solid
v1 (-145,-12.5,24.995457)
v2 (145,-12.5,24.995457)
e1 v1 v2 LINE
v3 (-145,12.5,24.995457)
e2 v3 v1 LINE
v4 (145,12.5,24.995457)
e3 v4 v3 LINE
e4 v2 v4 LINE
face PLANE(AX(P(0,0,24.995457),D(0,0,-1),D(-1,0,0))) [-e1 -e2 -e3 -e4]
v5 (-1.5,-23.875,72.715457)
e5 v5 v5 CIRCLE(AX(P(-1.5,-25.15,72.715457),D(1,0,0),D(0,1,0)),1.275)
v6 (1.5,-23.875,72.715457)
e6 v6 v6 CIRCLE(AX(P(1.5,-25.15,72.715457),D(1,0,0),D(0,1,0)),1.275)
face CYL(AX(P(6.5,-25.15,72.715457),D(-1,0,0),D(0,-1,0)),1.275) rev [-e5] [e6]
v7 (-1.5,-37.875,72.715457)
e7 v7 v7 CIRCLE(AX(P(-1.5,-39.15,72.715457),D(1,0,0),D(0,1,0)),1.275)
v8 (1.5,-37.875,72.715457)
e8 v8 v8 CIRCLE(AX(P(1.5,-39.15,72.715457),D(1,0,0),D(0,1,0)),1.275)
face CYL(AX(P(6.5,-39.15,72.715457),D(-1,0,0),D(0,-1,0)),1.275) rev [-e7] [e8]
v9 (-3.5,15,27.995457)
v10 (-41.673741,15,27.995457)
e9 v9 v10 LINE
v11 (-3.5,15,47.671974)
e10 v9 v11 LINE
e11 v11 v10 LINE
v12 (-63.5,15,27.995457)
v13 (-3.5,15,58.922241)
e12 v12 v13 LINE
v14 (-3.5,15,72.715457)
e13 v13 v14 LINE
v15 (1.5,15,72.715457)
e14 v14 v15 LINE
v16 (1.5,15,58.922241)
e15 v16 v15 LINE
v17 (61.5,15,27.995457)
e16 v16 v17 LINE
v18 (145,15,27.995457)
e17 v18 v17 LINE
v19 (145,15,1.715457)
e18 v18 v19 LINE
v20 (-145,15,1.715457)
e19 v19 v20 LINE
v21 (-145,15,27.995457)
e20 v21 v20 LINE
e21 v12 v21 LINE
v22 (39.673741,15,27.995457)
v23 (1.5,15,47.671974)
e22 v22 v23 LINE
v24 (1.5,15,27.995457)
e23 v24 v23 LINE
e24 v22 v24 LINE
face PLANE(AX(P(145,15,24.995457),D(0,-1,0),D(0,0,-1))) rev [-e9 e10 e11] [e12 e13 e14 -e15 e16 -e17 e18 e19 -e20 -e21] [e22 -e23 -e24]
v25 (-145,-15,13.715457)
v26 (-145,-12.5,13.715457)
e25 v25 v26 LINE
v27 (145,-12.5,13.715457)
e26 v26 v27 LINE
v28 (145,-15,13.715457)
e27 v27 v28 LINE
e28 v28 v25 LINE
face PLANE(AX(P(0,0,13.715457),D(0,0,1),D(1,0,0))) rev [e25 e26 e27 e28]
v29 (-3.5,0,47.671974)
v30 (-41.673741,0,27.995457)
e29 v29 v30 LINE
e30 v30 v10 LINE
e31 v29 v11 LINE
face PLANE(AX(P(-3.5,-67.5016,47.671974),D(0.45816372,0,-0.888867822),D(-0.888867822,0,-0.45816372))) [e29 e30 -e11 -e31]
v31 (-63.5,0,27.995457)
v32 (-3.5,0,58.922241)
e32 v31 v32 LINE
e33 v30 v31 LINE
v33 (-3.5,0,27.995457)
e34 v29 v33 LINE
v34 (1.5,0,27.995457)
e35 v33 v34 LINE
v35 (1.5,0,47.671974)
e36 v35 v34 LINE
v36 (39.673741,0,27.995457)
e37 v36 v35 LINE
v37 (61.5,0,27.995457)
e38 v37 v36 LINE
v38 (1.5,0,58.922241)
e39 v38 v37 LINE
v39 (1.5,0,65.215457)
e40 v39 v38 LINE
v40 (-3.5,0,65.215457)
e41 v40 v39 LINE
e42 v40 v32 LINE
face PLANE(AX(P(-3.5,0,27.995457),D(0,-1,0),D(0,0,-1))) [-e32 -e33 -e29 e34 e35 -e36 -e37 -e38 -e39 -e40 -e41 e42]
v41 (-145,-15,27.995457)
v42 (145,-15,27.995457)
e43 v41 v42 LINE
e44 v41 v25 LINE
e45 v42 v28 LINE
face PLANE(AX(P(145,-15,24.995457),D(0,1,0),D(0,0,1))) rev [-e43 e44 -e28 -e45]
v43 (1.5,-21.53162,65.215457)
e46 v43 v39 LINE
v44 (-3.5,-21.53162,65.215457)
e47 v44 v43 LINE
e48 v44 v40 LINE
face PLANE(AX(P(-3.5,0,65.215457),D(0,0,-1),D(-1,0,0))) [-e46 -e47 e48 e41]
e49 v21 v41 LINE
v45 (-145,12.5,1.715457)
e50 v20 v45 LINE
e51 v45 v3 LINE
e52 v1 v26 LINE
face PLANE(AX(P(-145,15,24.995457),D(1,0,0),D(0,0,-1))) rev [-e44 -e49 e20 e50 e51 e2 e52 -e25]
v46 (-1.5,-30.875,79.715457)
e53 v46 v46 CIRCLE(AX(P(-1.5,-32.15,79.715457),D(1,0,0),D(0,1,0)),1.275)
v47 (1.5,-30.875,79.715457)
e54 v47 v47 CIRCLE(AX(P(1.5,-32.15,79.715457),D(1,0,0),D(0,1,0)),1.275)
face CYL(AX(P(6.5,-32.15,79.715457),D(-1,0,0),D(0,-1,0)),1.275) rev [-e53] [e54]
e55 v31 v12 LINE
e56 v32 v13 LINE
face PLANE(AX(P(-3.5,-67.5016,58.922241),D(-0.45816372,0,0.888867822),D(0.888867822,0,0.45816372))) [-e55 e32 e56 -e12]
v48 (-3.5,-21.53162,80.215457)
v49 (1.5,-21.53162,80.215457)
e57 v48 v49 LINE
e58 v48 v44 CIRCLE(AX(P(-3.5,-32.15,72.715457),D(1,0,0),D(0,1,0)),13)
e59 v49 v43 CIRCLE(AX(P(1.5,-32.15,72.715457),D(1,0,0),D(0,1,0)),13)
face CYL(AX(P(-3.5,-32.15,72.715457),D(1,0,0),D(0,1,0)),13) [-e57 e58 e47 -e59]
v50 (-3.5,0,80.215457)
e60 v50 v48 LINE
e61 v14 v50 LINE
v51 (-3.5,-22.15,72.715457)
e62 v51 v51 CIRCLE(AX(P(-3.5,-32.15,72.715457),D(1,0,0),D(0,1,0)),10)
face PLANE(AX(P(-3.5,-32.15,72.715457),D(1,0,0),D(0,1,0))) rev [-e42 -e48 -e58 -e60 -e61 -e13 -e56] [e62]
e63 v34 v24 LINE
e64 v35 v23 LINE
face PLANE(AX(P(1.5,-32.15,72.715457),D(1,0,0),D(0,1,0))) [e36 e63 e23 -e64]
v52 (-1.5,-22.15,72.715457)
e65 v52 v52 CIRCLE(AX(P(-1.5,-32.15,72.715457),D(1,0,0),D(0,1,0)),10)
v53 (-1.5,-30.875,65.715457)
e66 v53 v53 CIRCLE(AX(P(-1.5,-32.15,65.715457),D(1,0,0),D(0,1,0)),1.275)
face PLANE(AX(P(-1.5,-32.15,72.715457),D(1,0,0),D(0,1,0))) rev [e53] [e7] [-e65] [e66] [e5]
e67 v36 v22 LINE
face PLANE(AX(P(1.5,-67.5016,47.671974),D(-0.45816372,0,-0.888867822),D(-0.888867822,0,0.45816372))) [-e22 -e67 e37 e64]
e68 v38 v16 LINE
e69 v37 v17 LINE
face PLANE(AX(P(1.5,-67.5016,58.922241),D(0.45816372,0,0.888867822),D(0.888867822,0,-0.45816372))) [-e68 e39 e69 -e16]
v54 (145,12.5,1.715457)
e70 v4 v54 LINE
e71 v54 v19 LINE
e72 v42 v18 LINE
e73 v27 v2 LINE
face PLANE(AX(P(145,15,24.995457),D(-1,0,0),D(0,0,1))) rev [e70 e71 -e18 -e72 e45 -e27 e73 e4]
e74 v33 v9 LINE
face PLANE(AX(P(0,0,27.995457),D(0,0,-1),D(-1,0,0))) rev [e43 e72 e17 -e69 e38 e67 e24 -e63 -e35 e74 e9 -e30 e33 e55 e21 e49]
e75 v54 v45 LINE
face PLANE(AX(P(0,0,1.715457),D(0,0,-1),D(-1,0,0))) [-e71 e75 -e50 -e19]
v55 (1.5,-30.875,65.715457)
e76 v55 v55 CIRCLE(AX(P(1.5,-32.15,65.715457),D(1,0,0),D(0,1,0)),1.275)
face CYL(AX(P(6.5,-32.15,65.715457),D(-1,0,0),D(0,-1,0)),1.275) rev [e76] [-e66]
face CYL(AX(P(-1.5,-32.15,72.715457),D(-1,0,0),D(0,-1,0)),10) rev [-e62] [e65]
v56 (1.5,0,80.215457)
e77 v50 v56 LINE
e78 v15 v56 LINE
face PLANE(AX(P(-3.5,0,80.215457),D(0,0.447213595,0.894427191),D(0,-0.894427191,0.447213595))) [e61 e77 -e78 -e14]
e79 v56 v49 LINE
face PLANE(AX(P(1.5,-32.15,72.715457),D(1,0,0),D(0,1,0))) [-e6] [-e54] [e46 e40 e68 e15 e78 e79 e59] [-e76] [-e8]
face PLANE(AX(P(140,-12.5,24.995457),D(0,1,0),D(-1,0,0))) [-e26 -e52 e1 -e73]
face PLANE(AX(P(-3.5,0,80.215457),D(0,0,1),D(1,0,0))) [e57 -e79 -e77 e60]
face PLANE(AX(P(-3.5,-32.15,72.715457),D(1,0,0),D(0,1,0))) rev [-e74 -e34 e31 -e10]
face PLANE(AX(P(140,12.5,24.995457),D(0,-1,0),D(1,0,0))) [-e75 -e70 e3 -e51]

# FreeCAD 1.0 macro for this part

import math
import FreeCAD as App
import Part
import Sketcher
Q = App.Units.Quantity

doc = App.newDocument("Part")
body = doc.addObject("PartDesign::Body", "Body")

sketch1 = body.newObject("Sketcher::SketchObject", "Sketch")
sketch1.AttachmentSupport = (doc.getObject("XY_Plane"), [""])
sketch1.MapMode = "FlatFace"
sketch1.AttachmentOffset = App.Placement(App.Vector(0, 0, 1.715457), App.Rotation())
sketch1.addGeometry([
    Part.LineSegment(App.Vector(-145, 15, 0), App.Vector(-145, -15, 0)),
    Part.LineSegment(App.Vector(-145, -15, 0), App.Vector(145, -15, 0)),
    Part.LineSegment(App.Vector(145, -15, 0), App.Vector(145, 15, 0)),
    Part.LineSegment(App.Vector(145, 15, 0), App.Vector(-145, 15, 0)),
    Part.LineSegment(App.Vector(140, -12, 0), App.Vector(-140, -12, 0)),
    Part.LineSegment(App.Vector(-140, -12, 0), App.Vector(-140, 12, 0)),
    Part.LineSegment(App.Vector(-140, 12, 0), App.Vector(140, 12, 0)),
    Part.LineSegment(App.Vector(140, 12, 0), App.Vector(140, -12, 0)),
], False)
sketch1.addConstraint([
    Sketcher.Constraint("Coincident", 0, 2, 1, 1),
    Sketcher.Constraint("Coincident", 1, 2, 2, 1),
    Sketcher.Constraint("Coincident", 2, 2, 3, 1),
    Sketcher.Constraint("Coincident", 3, 2, 0, 1),
    Sketcher.Constraint("Coincident", 4, 2, 5, 1),
    Sketcher.Constraint("Coincident", 5, 2, 6, 1),
    Sketcher.Constraint("Coincident", 6, 2, 7, 1),
    Sketcher.Constraint("Coincident", 7, 2, 4, 1),
    Sketcher.Constraint("Vertical", 0),
    Sketcher.Constraint("Horizontal", 1),
    Sketcher.Constraint("Vertical", 2),
    Sketcher.Constraint("Horizontal", 3),
    Sketcher.Constraint("Horizontal", 4),
    Sketcher.Constraint("Vertical", 5),
    Sketcher.Constraint("Horizontal", 6),
    Sketcher.Constraint("Vertical", 7),
    Sketcher.Constraint("Symmetric", 0, 2, 2, 2, -1, 1),
    Sketcher.Constraint("Symmetric", 4, 2, 6, 2, -1, 1),
    Sketcher.Constraint("DistanceX", 1, 1, 1, 2, Q("290 mm")),
    Sketcher.Constraint("DistanceX", 4, 2, 4, 1, Q("280 mm")),
    Sketcher.Constraint("DistanceY", 0, 2, 0, 1, Q("30 mm")),
    Sketcher.Constraint("DistanceY", 5, 1, 5, 2, Q("25 mm")),
])
pad1 = body.newObject("PartDesign::Pad", "Pad")
pad1.Profile = sketch1
pad1.Length = 23.28

sketch2 = body.newObject("Sketcher::SketchObject", "Sketch001")
sketch2.AttachmentSupport = (doc.getObject("XY_Plane"), [""])
sketch2.MapMode = "FlatFace"
sketch2.AttachmentOffset = App.Placement(App.Vector(0, 0, 24.995457), App.Rotation())
sketch2.addGeometry([
    Part.LineSegment(App.Vector(-145, 15, 0), App.Vector(-145, -15, 0)),
    Part.LineSegment(App.Vector(-145, -15, 0), App.Vector(145, -15, 0)),
    Part.LineSegment(App.Vector(145, -15, 0), App.Vector(145, 15, 0)),
    Part.LineSegment(App.Vector(145, 15, 0), App.Vector(-145, 15, 0)),
], False)
sketch2.addConstraint([
    Sketcher.Constraint("Coincident", 0, 2, 1, 1),
    Sketcher.Constraint("Coincident", 1, 2, 2, 1),
    Sketcher.Constraint("Coincident", 2, 2, 3, 1),
    Sketcher.Constraint("Coincident", 3, 2, 0, 1),
    Sketcher.Constraint("Vertical", 0),
    Sketcher.Constraint("Horizontal", 1),
    Sketcher.Constraint("Vertical", 2),
    Sketcher.Constraint("Horizontal", 3),
    Sketcher.Constraint("Symmetric", 0, 2, 2, 2, -1, 1),
    Sketcher.Constraint("DistanceX", 1, 1, 1, 2, Q("290 mm")),
    Sketcher.Constraint("DistanceY", 0, 2, 0, 1, Q("30 mm")),
])
pad2 = body.newObject("PartDesign::Pad", "Pad001")
pad2.Profile = sketch2
pad2.Length = 3

sketch3 = body.newObject("Sketcher::SketchObject", "Sketch002")
sketch3.AttachmentSupport = (doc.getObject("YZ_Plane"), [""])
sketch3.MapMode = "FlatFace"
sketch3.AttachmentOffset = App.Placement(App.Vector(0, 0, 145), App.Rotation())
sketch3.addGeometry([
    Part.LineSegment(App.Vector(12, 25, 0), App.Vector(-12, 25, 0)),
    Part.LineSegment(App.Vector(-12, 25, 0), App.Vector(-12, 2, 0)),
    Part.LineSegment(App.Vector(-12, 2, 0), App.Vector(12, 2, 0)),
    Part.LineSegment(App.Vector(12, 2, 0), App.Vector(12, 25, 0)),
], False)
sketch3.addConstraint([
    Sketcher.Constraint("Coincident", 0, 2, 1, 1),
    Sketcher.Constraint("Coincident", 1, 2, 2, 1),
    Sketcher.Constraint("Coincident", 2, 2, 3, 1),
    Sketcher.Constraint("Coincident", 3, 2, 0, 1),
    Sketcher.Constraint("Horizontal", 0),
    Sketcher.Constraint("Vertical", 1),
    Sketcher.Constraint("Horizontal", 2),
    Sketcher.Constraint("Vertical", 3),
    Sketcher.Constraint("DistanceX", 0, 2, 0, 1, Q("25 mm")),
    Sketcher.Constraint("DistanceY", 1, 2, 1, 1, Q("23.28 mm")),
    Sketcher.Constraint("DistanceX", 0, 2, -1, 1, Q("12.5 mm")),
    Sketcher.Constraint("DistanceY", -1, 1, 0, 2, Q("24.995457 mm")),
])
pocket1 = body.newObject("PartDesign::Pocket", "Pocket")
pocket1.Profile = sketch3
pocket1.Type = "ThroughAll"
pocket1.Midplane = True

sketch4 = body.newObject("Sketcher::SketchObject", "Sketch003")
sketch4.AttachmentSupport = (doc.getObject("YZ_Plane"), [""])
sketch4.MapMode = "FlatFace"
sketch4.AttachmentOffset = App.Placement(App.Vector(0, 0, -0.5), App.Rotation())
sketch4.addGeometry([
    Part.LineSegment(App.Vector(0, 28, 0), App.Vector(15, 28, 0)),
    Part.LineSegment(App.Vector(15, 28, 0), App.Vector(15, 73, 0)),
    Part.LineSegment(App.Vector(15, 73, 0), App.Vector(0, 80, 0)),
    Part.LineSegment(App.Vector(0, 80, 0), App.Vector(-22, 80, 0)),
    Part.ArcOfCircle(Part.Circle(App.Vector(-32, 73, 0), App.Vector(0, 0, 1), 13), math.radians(35), math.radians(325)),
    Part.LineSegment(App.Vector(-22, 65, 0), App.Vector(0, 65, 0)),
    Part.LineSegment(App.Vector(0, 65, 0), App.Vector(0, 28, 0)),
], False)
sketch4.addConstraint([
    Sketcher.Constraint("Coincident", 0, 2, 1, 1),
    Sketcher.Constraint("Coincident", 1, 2, 2, 1),
    Sketcher.Constraint("Coincident", 2, 2, 3, 1),
    Sketcher.Constraint("Coincident", 3, 2, 4, 1),
    Sketcher.Constraint("Coincident", 4, 2, 5, 1),
    Sketcher.Constraint("Coincident", 5, 2, 6, 1),
    Sketcher.Constraint("Coincident", 6, 2, 0, 1),
    Sketcher.Constraint("Horizontal", 0),
    Sketcher.Constraint("Vertical", 1),
    Sketcher.Constraint("Horizontal", 3),
    Sketcher.Constraint("Horizontal", 5),
    Sketcher.Constraint("Vertical", 6),
    Sketcher.Constraint("PointOnObject", 2, 2, -2),
    Sketcher.Constraint("PointOnObject", 5, 2, -2),
    Sketcher.Constraint("Horizontal", 4, 3, 1, 2),
    Sketcher.Constraint("Vertical", 3, 2, 4, 2),
    Sketcher.Constraint("Radius", 4, Q("13 mm")),
    Sketcher.Constraint("DistanceX", 0, 1, 0, 2, Q("15 mm")),
    Sketcher.Constraint("DistanceY", 4, 2, 3, 2, Q("15 mm")),
    Sketcher.Constraint("DistanceY", 1, 1, 1, 2, Q("44.72 mm")),
    Sketcher.Constraint("DistanceX", 4, 3, -1, 1, Q("32.15 mm")),
    Sketcher.Constraint("DistanceY", -1, 1, 4, 3, Q("72.715457 mm")),
])
pad3 = body.newObject("PartDesign::Pad", "Pad002")
pad3.Profile = sketch4
pad3.Type = "TwoLengths"
pad3.Length = 2
pad3.Length2 = 3

sketch5 = body.newObject("Sketcher::SketchObject", "Sketch004")
sketch5.AttachmentSupport = (doc.getObject("YZ_Plane"), [""])
sketch5.MapMode = "FlatFace"
sketch5.AttachmentOffset = App.Placement(App.Vector(0, 0, -3.5), App.Rotation())
sketch5.addGeometry(Part.Circle(App.Vector(-32, 73, 0), App.Vector(0, 0, 1), 10), False)
sketch5.addConstraint([
    Sketcher.Constraint("Diameter", 0, Q("20 mm")),
    Sketcher.Constraint("DistanceX", 0, 3, -1, 1, Q("32.15 mm")),
    Sketcher.Constraint("DistanceY", -1, 1, 0, 3, Q("72.715457 mm")),
])
pocket2 = body.newObject("PartDesign::Pocket", "Pocket001")
pocket2.Profile = sketch5
pocket2.Length = 2
pocket2.Reversed = True

sketch6 = body.newObject("Sketcher::SketchObject", "Sketch005")
sketch6.AttachmentSupport = (doc.getObject("YZ_Plane"), [""])
sketch6.MapMode = "FlatFace"
sketch6.AttachmentOffset = App.Placement(App.Vector(0, 0, -3.5), App.Rotation())
sketch6.addGeometry([
    Part.Circle(App.Vector(-25.1, 72.7, 0), App.Vector(0, 0, 1), 1.3),
    Part.Circle(App.Vector(-32.1, 79.7, 0), App.Vector(0, 0, 1), 1.3),
    Part.Circle(App.Vector(-39.1, 72.7, 0), App.Vector(0, 0, 1), 1.3),
    Part.Circle(App.Vector(-32.1, 65.7, 0), App.Vector(0, 0, 1), 1.3),
], False)
sketch6.addConstraint([
    Sketcher.Constraint("Equal", 0, 1),
    Sketcher.Constraint("Equal", 1, 2),
    Sketcher.Constraint("Equal", 2, 3),
    Sketcher.Constraint("Horizontal", 0, 3, 2, 3),
    Sketcher.Constraint("Vertical", 1, 3, 3, 3),
    Sketcher.Constraint("Diameter", 0, Q("2.55 mm")),
    Sketcher.Constraint("DistanceX", 1, 3, 0, 3, Q("7 mm")),
    Sketcher.Constraint("DistanceY", 0, 3, 1, 3, Q("7 mm")),
    Sketcher.Constraint("DistanceX", 2, 3, 1, 3, Q("7 mm")),
    Sketcher.Constraint("DistanceY", 3, 3, 0, 3, Q("7 mm")),
    Sketcher.Constraint("DistanceX", 0, 3, -1, 1, Q("25.15 mm")),
    Sketcher.Constraint("DistanceY", -1, 1, 0, 3, Q("72.715457 mm")),
])
pocket3 = body.newObject("PartDesign::Pocket", "Pocket002")
pocket3.Profile = sketch6
pocket3.Length = 10
pocket3.Reversed = True

sketch7 = body.newObject("Sketcher::SketchObject", "Sketch006")
sketch7.AttachmentSupport = (doc.getObject("XY_Plane"), [""])
sketch7.MapMode = "FlatFace"
sketch7.AttachmentOffset = App.Placement(App.Vector(0, 0, 1.715457), App.Rotation())
sketch7.addGeometry([
    Part.LineSegment(App.Vector(145, -12.5, 0), App.Vector(145, -15, 0)),
    Part.LineSegment(App.Vector(145, -15, 0), App.Vector(-145, -15, 0)),
    Part.LineSegment(App.Vector(-145, -15, 0), App.Vector(-145, -12.5, 0)),
    Part.LineSegment(App.Vector(-145, -12.5, 0), App.Vector(145, -12.5, 0)),
], False)
sketch7.addConstraint([
    Sketcher.Constraint("Coincident", 0, 2, 1, 1),
    Sketcher.Constraint("Coincident", 1, 2, 2, 1),
    Sketcher.Constraint("Coincident", 2, 2, 3, 1),
    Sketcher.Constraint("Coincident", 3, 2, 0, 1),
    Sketcher.Constraint("Vertical", 0),
    Sketcher.Constraint("Horizontal", 1),
    Sketcher.Constraint("Vertical", 2),
    Sketcher.Constraint("Horizontal", 3),
    Sketcher.Constraint("DistanceX", 1, 2, 1, 1, Q("290 mm")),
    Sketcher.Constraint("DistanceY", 0, 2, 0, 1, Q("2.5 mm")),
    Sketcher.Constraint("DistanceX", -1, 1, 0, 2, Q("145 mm")),
    Sketcher.Constraint("DistanceY", 0, 2, -1, 1, Q("15 mm")),
])
pocket4 = body.newObject("PartDesign::Pocket", "Pocket003")
pocket4.Profile = sketch7
pocket4.Length = 12
pocket4.Reversed = True

sketch8 = body.newObject("Sketcher::SketchObject", "Sketch007")
sketch8.AttachmentSupport = (doc.getObject("XZ_Plane"), [""])
sketch8.MapMode = "FlatFace"
sketch8.AttachmentOffset = App.Placement(App.Vector(0, 0, -15), App.Rotation())
sketch8.addGeometry([
    Part.LineSegment(App.Vector(-64, 28, 0), App.Vector(-4, 59, 0)),
    Part.LineSegment(App.Vector(-4, 59, 0), App.Vector(-4, 48, 0)),
    Part.LineSegment(App.Vector(-4, 48, 0), App.Vector(-42, 28, 0)),
    Part.LineSegment(App.Vector(-42, 28, 0), App.Vector(-64, 28, 0)),
    Part.LineSegment(App.Vector(62, 28, 0), App.Vector(40, 28, 0)),
    Part.LineSegment(App.Vector(40, 28, 0), App.Vector(2, 48, 0)),
    Part.LineSegment(App.Vector(2, 48, 0), App.Vector(2, 59, 0)),
    Part.LineSegment(App.Vector(2, 59, 0), App.Vector(62, 28, 0)),
], False)
sketch8.addConstraint([
    Sketcher.Constraint("Coincident", 0, 2, 1, 1),
    Sketcher.Constraint("Coincident", 1, 2, 2, 1),
    Sketcher.Constraint("Coincident", 2, 2, 3, 1),
    Sketcher.Constraint("Coincident", 3, 2, 0, 1),
    Sketcher.Constraint("Coincident", 4, 2, 5, 1),
    Sketcher.Constraint("Coincident", 5, 2, 6, 1),
    Sketcher.Constraint("Coincident", 6, 2, 7, 1),
    Sketcher.Constraint("Coincident", 7, 2, 4, 1),
    Sketcher.Constraint("Vertical", 1),
    Sketcher.Constraint("Horizontal", 3),
    Sketcher.Constraint("Horizontal", 4),
    Sketcher.Constraint("Vertical", 6),
    Sketcher.Constraint("Parallel", 0, 2),
    Sketcher.Constraint("Parallel", 5, 7),
    Sketcher.Constraint("Horizontal", 3, 2, 4, 2),
    Sketcher.Constraint("Horizontal", 1, 2, 5, 2),
    Sketcher.Constraint("Horizontal", 0, 2, 6, 2),
    Sketcher.Constraint("Equal", 3, 4),
    Sketcher.Constraint("DistanceX", 3, 2, 1, 2, Q("60 mm")),
    Sketcher.Constraint("DistanceX", 1, 2, 5, 2, Q("5 mm")),
    Sketcher.Constraint("DistanceX", 0, 2, -1, 1, Q("3.5 mm")),
    Sketcher.Constraint("Distance", 0, Q("67.5016 mm")),
    Sketcher.Constraint("DistanceX", 3, 2, 3, 1, Q("21.826259 mm")),
    Sketcher.Constraint("DistanceY", -1, 1, 0, 2, Q("58.922241 mm")),
])
pad4 = body.newObject("PartDesign::Pad", "Pad003")
pad4.Profile = sketch8
pad4.Length = 15

doc.recompute()
